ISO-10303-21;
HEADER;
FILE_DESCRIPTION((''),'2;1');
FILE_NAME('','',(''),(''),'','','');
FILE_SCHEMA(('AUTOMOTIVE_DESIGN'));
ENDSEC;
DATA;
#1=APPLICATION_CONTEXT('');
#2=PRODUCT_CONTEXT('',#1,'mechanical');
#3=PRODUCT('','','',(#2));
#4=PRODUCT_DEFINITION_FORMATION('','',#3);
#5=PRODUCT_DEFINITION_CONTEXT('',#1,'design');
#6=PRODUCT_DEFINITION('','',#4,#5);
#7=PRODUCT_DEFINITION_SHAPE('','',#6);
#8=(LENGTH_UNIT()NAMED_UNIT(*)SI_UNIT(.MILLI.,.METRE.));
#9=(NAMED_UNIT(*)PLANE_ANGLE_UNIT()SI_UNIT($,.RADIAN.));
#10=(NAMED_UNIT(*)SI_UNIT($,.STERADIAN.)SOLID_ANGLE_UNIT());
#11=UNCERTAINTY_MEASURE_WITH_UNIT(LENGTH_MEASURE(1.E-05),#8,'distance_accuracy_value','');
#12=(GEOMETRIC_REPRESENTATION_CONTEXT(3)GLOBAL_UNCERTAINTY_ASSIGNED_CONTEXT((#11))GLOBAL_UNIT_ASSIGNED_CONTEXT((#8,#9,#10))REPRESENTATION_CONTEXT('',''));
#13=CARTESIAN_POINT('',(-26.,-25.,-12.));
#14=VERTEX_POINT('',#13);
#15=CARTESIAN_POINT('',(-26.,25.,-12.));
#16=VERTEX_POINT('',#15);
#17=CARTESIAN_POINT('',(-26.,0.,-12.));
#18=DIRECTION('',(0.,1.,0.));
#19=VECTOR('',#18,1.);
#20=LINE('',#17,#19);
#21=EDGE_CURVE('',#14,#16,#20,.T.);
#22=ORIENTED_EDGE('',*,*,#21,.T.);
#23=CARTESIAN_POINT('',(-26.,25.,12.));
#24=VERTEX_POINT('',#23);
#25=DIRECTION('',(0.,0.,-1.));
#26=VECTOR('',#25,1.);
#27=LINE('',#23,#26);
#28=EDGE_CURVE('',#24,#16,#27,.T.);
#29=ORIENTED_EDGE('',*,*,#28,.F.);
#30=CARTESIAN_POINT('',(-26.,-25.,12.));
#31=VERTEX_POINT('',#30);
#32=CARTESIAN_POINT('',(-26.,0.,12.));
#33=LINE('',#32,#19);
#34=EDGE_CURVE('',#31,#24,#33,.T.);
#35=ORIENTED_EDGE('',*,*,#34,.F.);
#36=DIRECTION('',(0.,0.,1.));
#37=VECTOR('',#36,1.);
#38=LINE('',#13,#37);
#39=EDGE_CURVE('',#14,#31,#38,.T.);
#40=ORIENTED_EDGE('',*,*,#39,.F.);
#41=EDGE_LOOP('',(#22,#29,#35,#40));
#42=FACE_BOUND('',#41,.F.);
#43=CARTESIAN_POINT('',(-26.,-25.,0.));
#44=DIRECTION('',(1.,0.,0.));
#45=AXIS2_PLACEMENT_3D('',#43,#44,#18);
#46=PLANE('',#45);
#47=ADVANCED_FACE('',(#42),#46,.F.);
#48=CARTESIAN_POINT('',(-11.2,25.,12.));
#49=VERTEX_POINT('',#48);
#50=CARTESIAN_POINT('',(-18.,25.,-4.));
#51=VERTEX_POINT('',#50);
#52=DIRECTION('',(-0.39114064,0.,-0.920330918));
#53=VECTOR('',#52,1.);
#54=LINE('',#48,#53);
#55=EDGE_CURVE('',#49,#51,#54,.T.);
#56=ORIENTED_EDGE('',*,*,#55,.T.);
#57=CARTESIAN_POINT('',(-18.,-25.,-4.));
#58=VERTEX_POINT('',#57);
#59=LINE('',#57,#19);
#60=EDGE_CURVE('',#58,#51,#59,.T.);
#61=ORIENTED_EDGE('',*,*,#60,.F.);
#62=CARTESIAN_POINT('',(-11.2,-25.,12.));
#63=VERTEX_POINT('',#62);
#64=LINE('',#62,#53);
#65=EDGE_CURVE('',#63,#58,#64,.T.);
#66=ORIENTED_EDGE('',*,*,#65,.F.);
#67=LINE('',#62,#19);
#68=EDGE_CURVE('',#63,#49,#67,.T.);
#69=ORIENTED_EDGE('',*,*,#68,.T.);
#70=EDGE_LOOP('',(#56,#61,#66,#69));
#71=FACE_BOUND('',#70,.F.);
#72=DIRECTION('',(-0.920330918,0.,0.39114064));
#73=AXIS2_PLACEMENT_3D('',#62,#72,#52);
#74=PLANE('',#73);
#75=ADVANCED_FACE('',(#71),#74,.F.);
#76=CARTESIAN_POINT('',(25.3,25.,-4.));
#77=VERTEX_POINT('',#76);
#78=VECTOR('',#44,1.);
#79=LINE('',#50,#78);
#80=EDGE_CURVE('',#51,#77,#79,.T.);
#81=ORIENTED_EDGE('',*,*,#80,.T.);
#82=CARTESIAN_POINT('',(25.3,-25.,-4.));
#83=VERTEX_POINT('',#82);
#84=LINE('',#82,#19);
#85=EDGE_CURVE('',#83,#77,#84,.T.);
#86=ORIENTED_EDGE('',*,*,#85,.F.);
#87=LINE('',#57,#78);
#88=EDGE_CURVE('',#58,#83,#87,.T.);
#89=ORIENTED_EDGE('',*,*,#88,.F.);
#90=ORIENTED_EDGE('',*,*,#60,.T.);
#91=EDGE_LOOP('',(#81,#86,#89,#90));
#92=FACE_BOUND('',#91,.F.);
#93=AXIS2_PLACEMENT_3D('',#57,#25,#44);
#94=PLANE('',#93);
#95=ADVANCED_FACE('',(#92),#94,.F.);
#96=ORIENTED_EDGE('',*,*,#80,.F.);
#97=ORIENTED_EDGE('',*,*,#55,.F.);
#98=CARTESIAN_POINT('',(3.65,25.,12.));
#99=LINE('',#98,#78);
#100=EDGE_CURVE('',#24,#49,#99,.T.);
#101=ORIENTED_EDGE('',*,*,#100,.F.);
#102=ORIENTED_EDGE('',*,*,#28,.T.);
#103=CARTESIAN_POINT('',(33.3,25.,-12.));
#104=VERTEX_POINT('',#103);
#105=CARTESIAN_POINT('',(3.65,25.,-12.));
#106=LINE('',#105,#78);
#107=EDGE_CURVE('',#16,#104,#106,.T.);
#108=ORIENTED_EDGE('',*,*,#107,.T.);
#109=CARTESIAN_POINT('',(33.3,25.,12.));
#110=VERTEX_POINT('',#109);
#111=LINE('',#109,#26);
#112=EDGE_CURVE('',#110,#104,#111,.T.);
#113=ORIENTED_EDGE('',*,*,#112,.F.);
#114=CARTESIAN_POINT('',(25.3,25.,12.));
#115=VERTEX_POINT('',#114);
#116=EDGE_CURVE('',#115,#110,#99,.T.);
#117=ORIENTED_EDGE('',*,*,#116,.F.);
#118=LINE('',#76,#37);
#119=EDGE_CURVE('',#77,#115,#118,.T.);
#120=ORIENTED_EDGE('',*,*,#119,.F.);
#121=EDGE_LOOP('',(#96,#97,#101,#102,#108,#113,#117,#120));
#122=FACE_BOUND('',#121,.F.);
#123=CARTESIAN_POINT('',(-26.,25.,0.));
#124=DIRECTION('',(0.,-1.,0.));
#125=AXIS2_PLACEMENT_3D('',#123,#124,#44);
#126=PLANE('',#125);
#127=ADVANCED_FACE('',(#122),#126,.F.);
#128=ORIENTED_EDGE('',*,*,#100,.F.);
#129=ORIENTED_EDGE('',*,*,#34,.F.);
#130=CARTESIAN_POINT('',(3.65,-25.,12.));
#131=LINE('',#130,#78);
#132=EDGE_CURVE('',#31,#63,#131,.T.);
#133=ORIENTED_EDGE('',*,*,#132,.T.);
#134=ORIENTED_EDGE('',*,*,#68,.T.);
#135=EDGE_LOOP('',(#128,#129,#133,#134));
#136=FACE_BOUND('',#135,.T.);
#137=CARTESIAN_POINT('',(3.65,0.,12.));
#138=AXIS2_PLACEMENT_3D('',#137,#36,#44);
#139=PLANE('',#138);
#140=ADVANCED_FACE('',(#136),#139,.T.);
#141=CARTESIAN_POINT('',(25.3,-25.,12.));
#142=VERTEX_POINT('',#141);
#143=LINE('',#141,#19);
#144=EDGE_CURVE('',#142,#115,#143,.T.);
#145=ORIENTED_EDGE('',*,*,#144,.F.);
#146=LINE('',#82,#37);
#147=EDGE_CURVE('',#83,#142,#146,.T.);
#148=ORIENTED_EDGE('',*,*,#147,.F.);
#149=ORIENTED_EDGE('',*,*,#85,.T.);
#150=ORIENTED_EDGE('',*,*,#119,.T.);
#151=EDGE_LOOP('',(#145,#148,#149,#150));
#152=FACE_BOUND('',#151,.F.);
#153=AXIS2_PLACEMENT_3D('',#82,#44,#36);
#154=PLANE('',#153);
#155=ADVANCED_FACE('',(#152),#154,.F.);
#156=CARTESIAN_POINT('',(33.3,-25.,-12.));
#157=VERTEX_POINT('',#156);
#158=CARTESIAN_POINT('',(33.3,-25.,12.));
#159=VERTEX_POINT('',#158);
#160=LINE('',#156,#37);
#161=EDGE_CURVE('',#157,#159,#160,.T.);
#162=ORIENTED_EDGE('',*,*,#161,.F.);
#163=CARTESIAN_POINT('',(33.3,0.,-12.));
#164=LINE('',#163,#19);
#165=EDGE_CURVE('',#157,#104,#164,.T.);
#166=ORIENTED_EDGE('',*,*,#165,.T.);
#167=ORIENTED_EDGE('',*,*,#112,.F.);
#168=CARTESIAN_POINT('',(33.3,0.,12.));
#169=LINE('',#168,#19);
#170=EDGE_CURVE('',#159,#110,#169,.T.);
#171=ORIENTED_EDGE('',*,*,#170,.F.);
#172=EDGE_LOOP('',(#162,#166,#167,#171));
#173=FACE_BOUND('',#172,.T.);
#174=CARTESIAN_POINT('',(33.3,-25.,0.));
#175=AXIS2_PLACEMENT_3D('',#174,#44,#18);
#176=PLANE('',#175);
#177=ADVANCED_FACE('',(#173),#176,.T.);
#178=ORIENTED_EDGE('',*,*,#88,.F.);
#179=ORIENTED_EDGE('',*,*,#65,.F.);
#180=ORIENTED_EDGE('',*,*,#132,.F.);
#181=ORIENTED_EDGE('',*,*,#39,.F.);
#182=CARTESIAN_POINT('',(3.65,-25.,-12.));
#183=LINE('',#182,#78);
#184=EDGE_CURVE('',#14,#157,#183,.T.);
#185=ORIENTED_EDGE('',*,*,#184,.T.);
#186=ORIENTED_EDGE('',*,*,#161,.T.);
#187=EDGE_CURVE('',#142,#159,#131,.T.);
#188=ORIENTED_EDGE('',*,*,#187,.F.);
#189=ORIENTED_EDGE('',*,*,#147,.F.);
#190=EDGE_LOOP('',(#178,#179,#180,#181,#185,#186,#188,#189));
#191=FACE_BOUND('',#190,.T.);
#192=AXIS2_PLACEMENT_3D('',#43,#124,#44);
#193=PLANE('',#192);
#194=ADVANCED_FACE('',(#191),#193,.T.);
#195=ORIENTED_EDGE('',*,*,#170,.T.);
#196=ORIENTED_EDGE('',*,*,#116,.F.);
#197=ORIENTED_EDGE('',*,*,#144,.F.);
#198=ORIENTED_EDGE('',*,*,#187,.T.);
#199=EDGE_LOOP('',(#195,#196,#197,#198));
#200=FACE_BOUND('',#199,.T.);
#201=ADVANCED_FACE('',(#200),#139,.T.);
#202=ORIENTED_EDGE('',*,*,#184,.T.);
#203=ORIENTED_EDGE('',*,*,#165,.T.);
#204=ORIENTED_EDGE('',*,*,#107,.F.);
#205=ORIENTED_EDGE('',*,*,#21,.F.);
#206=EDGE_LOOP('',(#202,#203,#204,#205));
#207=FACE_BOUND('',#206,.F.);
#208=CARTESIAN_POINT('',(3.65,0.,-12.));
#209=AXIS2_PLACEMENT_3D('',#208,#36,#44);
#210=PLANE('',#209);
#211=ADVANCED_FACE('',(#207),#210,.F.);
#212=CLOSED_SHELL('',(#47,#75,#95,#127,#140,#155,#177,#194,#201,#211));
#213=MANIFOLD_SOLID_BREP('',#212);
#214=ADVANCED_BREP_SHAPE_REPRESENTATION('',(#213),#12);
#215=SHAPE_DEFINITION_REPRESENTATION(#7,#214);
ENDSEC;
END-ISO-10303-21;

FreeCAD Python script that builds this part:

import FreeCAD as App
import Part
import Sketcher


def add_polygon(sketch, points):
    """Adds a closed chain of lines whose ends are joined by coincident constraints."""
    first, n = sketch.GeometryCount, len(points)
    for a, b in zip(points, points[1:] + points[:1]):
        sketch.addGeometry(Part.LineSegment(App.Vector(*a, 0), App.Vector(*b, 0)), False)
    for i in range(n):
        sketch.addConstraint(Sketcher.Constraint("Coincident", first + i, 2, first + (i + 1) % n, 1))

doc = App.newDocument("Part")
body = doc.addObject("PartDesign::Body", "Body")

# Sketch on XY plane
sketch1 = body.newObject("Sketcher::SketchObject", "Sketch")
sketch1.AttachmentSupport = (doc.getObject("XY_Plane"), [""])
sketch1.MapMode = "FlatFace"
add_polygon(sketch1, [(-26, 25), (-26, -25), (33, -25), (33, 25)])  # lines 0-3
sketch1.addConstraint([
    Sketcher.Constraint("Vertical", 0),
    Sketcher.Constraint("Horizontal", 1),
    Sketcher.Constraint("Vertical", 2),
    Sketcher.Constraint("Horizontal", 3),
    Sketcher.Constraint("DistanceY", 0, 2, 0, 1, 50.0),
    Sketcher.Constraint("DistanceX", 1, 1, 1, 2, 59.3),
    Sketcher.Constraint("DistanceX", 0, 2, -1, 1, 26.0),
    Sketcher.Constraint("DistanceY", 0, 2, -1, 1, 25.0),
])
pad1 = body.newObject("PartDesign::Pad", "Pad")
pad1.Profile = sketch1
pad1.Length = 24
pad1.Midplane = True

# Sketch on XZ plane
sketch2 = body.newObject("Sketcher::SketchObject", "Sketch001")
sketch2.AttachmentSupport = (doc.getObject("XZ_Plane"), [""])
sketch2.MapMode = "FlatFace"
sketch2.AttachmentOffset = App.Placement(App.Vector(0, 0, 25), App.Rotation())
add_polygon(sketch2, [(25, -4), (25, 12), (-11, 12), (-18, -4)])  # lines 0-3
sketch2.addConstraint([
    Sketcher.Constraint("Vertical", 0),
    Sketcher.Constraint("Horizontal", 1),
    Sketcher.Constraint("Horizontal", 3),
    Sketcher.Constraint("DistanceY", 0, 1, 0, 2, 16.0),
    Sketcher.Constraint("DistanceX", 1, 2, 1, 1, 36.5),
    Sketcher.Constraint("DistanceX", 3, 1, 3, 2, 43.3),
    Sketcher.Constraint("DistanceY", -1, 1, 0, 2, 12.0),
    Sketcher.Constraint("DistanceX", 2, 2, -1, 1, 18.0),
])
pocket1 = body.newObject("PartDesign::Pocket", "Pocket")
pocket1.Profile = sketch2
pocket1.Length = 50

doc.recompute()
